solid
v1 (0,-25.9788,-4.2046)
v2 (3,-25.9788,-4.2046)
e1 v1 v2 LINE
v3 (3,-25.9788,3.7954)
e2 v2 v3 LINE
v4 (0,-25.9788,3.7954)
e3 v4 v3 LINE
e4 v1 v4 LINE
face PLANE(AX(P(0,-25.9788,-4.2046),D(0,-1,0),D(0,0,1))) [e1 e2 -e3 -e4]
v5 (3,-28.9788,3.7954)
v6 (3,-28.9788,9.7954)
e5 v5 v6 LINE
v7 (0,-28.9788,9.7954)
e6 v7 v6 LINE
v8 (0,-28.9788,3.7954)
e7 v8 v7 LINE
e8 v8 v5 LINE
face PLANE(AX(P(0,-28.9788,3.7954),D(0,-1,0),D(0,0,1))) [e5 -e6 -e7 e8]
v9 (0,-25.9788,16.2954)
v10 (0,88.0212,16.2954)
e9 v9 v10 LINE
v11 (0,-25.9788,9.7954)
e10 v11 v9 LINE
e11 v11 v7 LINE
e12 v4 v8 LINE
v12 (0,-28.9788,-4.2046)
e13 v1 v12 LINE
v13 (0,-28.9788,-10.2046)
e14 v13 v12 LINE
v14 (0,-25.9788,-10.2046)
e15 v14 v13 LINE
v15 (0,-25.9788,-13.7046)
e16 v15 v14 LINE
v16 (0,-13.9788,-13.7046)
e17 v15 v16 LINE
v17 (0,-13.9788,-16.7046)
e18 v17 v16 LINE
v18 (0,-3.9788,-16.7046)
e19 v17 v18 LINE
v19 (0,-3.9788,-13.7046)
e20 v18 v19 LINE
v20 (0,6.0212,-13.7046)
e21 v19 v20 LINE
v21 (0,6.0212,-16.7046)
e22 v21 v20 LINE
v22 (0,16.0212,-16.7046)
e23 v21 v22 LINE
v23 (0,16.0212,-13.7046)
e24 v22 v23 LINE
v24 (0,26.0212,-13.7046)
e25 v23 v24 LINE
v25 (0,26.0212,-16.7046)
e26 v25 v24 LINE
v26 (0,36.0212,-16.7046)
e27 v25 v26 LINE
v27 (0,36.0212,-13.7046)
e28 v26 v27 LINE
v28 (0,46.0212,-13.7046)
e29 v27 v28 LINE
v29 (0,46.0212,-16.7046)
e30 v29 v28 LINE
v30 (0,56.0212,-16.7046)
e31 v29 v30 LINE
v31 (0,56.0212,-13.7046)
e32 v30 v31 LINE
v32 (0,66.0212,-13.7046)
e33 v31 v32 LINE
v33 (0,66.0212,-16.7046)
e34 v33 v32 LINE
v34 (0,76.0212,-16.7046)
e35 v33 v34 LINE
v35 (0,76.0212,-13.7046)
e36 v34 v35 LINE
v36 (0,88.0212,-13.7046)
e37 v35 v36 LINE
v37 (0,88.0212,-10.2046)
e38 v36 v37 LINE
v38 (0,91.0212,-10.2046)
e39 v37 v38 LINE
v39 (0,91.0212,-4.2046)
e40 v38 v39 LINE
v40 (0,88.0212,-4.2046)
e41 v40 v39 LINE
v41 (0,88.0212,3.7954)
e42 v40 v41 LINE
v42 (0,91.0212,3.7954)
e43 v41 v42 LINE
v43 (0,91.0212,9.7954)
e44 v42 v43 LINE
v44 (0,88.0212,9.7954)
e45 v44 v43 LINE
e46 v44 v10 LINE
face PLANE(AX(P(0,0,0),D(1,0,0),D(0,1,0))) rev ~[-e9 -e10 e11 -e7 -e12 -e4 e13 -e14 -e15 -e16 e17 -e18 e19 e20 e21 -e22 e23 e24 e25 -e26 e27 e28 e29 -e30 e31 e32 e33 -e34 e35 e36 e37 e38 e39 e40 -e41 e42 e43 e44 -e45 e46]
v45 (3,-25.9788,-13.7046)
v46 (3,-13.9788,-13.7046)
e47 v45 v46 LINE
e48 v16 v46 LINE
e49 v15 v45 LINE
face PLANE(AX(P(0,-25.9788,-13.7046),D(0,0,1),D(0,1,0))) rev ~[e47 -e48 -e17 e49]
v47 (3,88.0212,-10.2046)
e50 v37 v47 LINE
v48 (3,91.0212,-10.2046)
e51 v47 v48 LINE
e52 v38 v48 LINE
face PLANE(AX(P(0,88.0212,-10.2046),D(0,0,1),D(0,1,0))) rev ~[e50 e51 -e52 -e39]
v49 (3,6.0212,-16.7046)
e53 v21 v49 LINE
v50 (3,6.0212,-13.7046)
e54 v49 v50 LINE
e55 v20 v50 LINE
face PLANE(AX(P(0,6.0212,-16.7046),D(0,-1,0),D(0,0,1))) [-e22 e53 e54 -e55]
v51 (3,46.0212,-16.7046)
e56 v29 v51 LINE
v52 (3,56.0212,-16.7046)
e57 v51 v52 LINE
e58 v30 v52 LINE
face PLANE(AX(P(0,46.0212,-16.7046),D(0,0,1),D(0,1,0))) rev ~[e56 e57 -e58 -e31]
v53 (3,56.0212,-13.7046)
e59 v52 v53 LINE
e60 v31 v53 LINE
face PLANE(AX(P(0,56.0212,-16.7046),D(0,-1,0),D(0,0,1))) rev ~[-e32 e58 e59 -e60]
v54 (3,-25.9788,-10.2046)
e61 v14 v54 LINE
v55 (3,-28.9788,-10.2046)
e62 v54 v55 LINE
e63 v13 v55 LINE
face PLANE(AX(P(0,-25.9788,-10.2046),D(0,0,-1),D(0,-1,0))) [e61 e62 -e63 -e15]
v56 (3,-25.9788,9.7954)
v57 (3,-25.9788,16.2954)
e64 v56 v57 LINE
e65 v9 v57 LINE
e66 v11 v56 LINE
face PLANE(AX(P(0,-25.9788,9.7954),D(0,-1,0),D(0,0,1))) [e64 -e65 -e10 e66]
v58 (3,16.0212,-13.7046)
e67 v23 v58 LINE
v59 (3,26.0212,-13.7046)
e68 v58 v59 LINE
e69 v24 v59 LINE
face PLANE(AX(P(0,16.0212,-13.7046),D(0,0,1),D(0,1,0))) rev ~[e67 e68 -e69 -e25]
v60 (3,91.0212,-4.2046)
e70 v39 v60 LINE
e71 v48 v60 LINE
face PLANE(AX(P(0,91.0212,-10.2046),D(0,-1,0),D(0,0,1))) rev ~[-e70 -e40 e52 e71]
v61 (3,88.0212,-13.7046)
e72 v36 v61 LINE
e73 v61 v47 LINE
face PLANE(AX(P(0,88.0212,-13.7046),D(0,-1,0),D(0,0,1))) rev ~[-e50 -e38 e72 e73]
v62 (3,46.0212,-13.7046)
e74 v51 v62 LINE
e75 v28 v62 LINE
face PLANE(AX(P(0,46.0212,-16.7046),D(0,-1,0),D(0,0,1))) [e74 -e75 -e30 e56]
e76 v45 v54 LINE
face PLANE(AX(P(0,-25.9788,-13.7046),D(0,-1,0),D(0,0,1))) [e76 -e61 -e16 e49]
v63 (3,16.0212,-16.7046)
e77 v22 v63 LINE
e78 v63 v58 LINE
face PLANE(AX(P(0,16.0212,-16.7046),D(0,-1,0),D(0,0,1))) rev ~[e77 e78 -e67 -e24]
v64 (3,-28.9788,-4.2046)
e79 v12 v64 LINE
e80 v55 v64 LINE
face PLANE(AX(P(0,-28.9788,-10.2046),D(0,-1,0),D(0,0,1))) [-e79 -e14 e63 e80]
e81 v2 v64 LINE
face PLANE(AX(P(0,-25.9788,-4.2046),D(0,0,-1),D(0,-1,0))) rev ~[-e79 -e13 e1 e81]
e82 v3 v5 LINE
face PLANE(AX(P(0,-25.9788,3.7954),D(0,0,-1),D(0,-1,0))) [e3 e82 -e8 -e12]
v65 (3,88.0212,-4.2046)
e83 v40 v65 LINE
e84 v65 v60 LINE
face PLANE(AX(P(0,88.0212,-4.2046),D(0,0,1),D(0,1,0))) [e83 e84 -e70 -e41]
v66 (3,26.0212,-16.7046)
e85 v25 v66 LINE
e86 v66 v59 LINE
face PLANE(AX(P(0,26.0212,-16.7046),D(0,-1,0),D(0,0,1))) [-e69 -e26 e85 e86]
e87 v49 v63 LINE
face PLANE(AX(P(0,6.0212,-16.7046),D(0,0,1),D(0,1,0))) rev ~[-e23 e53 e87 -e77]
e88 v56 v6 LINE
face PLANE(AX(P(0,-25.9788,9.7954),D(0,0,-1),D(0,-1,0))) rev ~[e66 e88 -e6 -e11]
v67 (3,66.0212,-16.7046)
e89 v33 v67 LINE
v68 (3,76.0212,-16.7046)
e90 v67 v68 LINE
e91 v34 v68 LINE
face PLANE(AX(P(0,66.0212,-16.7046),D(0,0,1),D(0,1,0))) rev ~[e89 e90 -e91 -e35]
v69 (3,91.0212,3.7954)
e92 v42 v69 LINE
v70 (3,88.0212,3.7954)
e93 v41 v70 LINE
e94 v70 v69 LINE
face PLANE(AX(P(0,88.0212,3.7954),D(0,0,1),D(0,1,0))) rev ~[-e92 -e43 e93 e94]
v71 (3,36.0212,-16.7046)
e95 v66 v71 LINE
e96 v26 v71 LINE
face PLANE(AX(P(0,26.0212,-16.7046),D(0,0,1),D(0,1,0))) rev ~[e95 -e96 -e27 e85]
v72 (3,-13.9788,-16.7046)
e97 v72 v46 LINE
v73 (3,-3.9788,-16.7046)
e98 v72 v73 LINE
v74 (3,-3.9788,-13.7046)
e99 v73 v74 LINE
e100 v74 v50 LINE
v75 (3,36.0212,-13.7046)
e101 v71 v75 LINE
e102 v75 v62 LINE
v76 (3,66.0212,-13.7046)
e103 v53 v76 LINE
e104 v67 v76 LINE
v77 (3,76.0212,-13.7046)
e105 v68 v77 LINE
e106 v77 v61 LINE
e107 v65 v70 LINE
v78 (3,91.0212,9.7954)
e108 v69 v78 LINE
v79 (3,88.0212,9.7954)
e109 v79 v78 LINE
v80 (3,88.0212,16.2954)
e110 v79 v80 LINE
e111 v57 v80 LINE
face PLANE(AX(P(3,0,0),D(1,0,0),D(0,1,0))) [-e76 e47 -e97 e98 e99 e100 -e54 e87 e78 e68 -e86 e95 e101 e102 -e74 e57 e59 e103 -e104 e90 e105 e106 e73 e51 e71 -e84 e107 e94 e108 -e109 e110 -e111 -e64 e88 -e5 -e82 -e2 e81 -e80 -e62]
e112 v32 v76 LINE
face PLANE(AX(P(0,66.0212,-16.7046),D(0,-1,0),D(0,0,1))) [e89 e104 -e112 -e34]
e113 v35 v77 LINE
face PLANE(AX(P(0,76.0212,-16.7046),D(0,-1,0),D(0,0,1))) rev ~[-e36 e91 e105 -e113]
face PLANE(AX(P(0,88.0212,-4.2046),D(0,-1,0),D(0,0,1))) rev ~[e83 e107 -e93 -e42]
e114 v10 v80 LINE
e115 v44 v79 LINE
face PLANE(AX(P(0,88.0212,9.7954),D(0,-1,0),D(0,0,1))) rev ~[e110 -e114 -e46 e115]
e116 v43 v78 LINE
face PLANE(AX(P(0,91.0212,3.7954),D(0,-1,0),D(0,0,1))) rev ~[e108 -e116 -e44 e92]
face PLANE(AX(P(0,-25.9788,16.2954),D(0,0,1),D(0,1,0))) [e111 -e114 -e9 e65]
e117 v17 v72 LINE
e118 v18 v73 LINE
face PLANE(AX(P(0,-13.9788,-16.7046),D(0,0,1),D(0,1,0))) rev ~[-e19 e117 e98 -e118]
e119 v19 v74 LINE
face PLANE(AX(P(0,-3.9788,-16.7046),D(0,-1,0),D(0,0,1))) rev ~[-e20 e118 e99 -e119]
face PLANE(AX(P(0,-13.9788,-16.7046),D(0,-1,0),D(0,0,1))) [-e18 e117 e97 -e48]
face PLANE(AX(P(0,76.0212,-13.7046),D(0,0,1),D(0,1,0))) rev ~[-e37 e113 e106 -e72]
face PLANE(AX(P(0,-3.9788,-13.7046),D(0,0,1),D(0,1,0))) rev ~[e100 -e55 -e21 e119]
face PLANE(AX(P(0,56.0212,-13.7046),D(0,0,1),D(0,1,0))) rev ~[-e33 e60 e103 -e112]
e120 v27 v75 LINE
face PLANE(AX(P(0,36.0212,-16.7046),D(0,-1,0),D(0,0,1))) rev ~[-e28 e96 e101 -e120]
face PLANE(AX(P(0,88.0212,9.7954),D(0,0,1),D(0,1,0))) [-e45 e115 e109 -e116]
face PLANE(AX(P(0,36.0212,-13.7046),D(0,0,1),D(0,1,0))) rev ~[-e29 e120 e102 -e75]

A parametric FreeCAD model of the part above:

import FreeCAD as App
import Part
import Sketcher
Q = App.Units.Quantity

doc = App.newDocument("Part")
body = doc.addObject("PartDesign::Body", "Body")

# Sketch on YZ plane
sketch1 = body.newObject("Sketcher::SketchObject", "Sketch")
sketch1.AttachmentSupport = (doc.getObject("YZ_Plane"), [""])
sketch1.MapMode = "FlatFace"
sketch1.addGeometry([
    Part.LineSegment(App.Vector(6, -16.7, 0), App.Vector(16, -16.7, 0)),  # 0
    Part.LineSegment(App.Vector(16, -16.7, 0), App.Vector(16, -13.7, 0)),  # 1
    Part.LineSegment(App.Vector(16, -13.7, 0), App.Vector(26, -13.7, 0)),  # 2
    Part.LineSegment(App.Vector(26, -13.7, 0), App.Vector(26, -16.7, 0)),  # 3
    Part.LineSegment(App.Vector(26, -16.7, 0), App.Vector(36, -16.7, 0)),  # 4
    Part.LineSegment(App.Vector(36, -16.7, 0), App.Vector(36, -13.7, 0)),  # 5
    Part.LineSegment(App.Vector(36, -13.7, 0), App.Vector(46, -13.7, 0)),  # 6
    Part.LineSegment(App.Vector(46, -13.7, 0), App.Vector(46, -16.7, 0)),  # 7
    Part.LineSegment(App.Vector(46, -16.7, 0), App.Vector(56, -16.7, 0)),  # 8
    Part.LineSegment(App.Vector(56, -16.7, 0), App.Vector(56, -13.7, 0)),  # 9
    Part.LineSegment(App.Vector(56, -13.7, 0), App.Vector(66, -13.7, 0)),  # 10
    Part.LineSegment(App.Vector(66, -13.7, 0), App.Vector(66, -16.7, 0)),  # 11
    Part.LineSegment(App.Vector(66, -16.7, 0), App.Vector(76, -16.7, 0)),  # 12
    Part.LineSegment(App.Vector(76, -16.7, 0), App.Vector(76, -13.7, 0)),  # 13
    Part.LineSegment(App.Vector(76, -13.7, 0), App.Vector(88, -13.7, 0)),  # 14
    Part.LineSegment(App.Vector(88, -13.7, 0), App.Vector(88, -10.2, 0)),  # 15
    Part.LineSegment(App.Vector(88, -10.2, 0), App.Vector(91, -10.2, 0)),  # 16
    Part.LineSegment(App.Vector(91, -10.2, 0), App.Vector(91, -4.2, 0)),  # 17
    Part.LineSegment(App.Vector(91, -4.2, 0), App.Vector(88, -4.2, 0)),  # 18
    Part.LineSegment(App.Vector(88, -4.2, 0), App.Vector(88, 3.8, 0)),  # 19
    Part.LineSegment(App.Vector(88, 3.8, 0), App.Vector(91, 3.8, 0)),  # 20
    Part.LineSegment(App.Vector(91, 3.8, 0), App.Vector(91, 9.8, 0)),  # 21
    Part.LineSegment(App.Vector(91, 9.8, 0), App.Vector(88, 9.8, 0)),  # 22
    Part.LineSegment(App.Vector(88, 9.8, 0), App.Vector(88, 16.3, 0)),  # 23
    Part.LineSegment(App.Vector(88, 16.3, 0), App.Vector(-26, 16.3, 0)),  # 24
    Part.LineSegment(App.Vector(-26, 16.3, 0), App.Vector(-26, 9.8, 0)),  # 25
    Part.LineSegment(App.Vector(-26, 9.8, 0), App.Vector(-29, 9.8, 0)),  # 26
    Part.LineSegment(App.Vector(-29, 9.8, 0), App.Vector(-29, 3.8, 0)),  # 27
    Part.LineSegment(App.Vector(-29, 3.8, 0), App.Vector(-26, 3.8, 0)),  # 28
    Part.LineSegment(App.Vector(-26, 3.8, 0), App.Vector(-26, -4.2, 0)),  # 29
    Part.LineSegment(App.Vector(-26, -4.2, 0), App.Vector(-29, -4.2, 0)),  # 30
    Part.LineSegment(App.Vector(-29, -4.2, 0), App.Vector(-29, -10.2, 0)),  # 31
    Part.LineSegment(App.Vector(-29, -10.2, 0), App.Vector(-26, -10.2, 0)),  # 32
    Part.LineSegment(App.Vector(-26, -10.2, 0), App.Vector(-26, -13.7, 0)),  # 33
    Part.LineSegment(App.Vector(-26, -13.7, 0), App.Vector(-14, -13.7, 0)),  # 34
    Part.LineSegment(App.Vector(-14, -13.7, 0), App.Vector(-14, -16.7, 0)),  # 35
    Part.LineSegment(App.Vector(-14, -16.7, 0), App.Vector(-4, -16.7, 0)),  # 36
    Part.LineSegment(App.Vector(-4, -16.7, 0), App.Vector(-4, -13.7, 0)),  # 37
    Part.LineSegment(App.Vector(-4, -13.7, 0), App.Vector(6, -13.7, 0)),  # 38
    Part.LineSegment(App.Vector(6, -13.7, 0), App.Vector(6, -16.7, 0)),  # 39
], False)
sketch1.addConstraint([
    Sketcher.Constraint("Coincident", 0, 2, 1, 1),
    Sketcher.Constraint("Coincident", 1, 2, 2, 1),
    Sketcher.Constraint("Coincident", 2, 2, 3, 1),
    Sketcher.Constraint("Coincident", 3, 2, 4, 1),
    Sketcher.Constraint("Coincident", 4, 2, 5, 1),
    Sketcher.Constraint("Coincident", 5, 2, 6, 1),
    Sketcher.Constraint("Coincident", 6, 2, 7, 1),
    Sketcher.Constraint("Coincident", 7, 2, 8, 1),
    Sketcher.Constraint("Coincident", 8, 2, 9, 1),
    Sketcher.Constraint("Coincident", 9, 2, 10, 1),
    Sketcher.Constraint("Coincident", 10, 2, 11, 1),
    Sketcher.Constraint("Coincident", 11, 2, 12, 1),
    Sketcher.Constraint("Coincident", 12, 2, 13, 1),
    Sketcher.Constraint("Coincident", 13, 2, 14, 1),
    Sketcher.Constraint("Coincident", 14, 2, 15, 1),
    Sketcher.Constraint("Coincident", 15, 2, 16, 1),
    Sketcher.Constraint("Coincident", 16, 2, 17, 1),
    Sketcher.Constraint("Coincident", 17, 2, 18, 1),
    Sketcher.Constraint("Coincident", 18, 2, 19, 1),
    Sketcher.Constraint("Coincident", 19, 2, 20, 1),
    Sketcher.Constraint("Coincident", 20, 2, 21, 1),
    Sketcher.Constraint("Coincident", 21, 2, 22, 1),
    Sketcher.Constraint("Coincident", 22, 2, 23, 1),
    Sketcher.Constraint("Coincident", 23, 2, 24, 1),
    Sketcher.Constraint("Coincident", 24, 2, 25, 1),
    Sketcher.Constraint("Coincident", 25, 2, 26, 1),
    Sketcher.Constraint("Coincident", 26, 2, 27, 1),
    Sketcher.Constraint("Coincident", 27, 2, 28, 1),
    Sketcher.Constraint("Coincident", 28, 2, 29, 1),
    Sketcher.Constraint("Coincident", 29, 2, 30, 1),
    Sketcher.Constraint("Coincident", 30, 2, 31, 1),
    Sketcher.Constraint("Coincident", 31, 2, 32, 1),
    Sketcher.Constraint("Coincident", 32, 2, 33, 1),
    Sketcher.Constraint("Coincident", 33, 2, 34, 1),
    Sketcher.Constraint("Coincident", 34, 2, 35, 1),
    Sketcher.Constraint("Coincident", 35, 2, 36, 1),
    Sketcher.Constraint("Coincident", 36, 2, 37, 1),
    Sketcher.Constraint("Coincident", 37, 2, 38, 1),
    Sketcher.Constraint("Coincident", 38, 2, 39, 1),
    Sketcher.Constraint("Coincident", 39, 2, 0, 1),
    Sketcher.Constraint("Horizontal", 0),
    Sketcher.Constraint("Vertical", 1),
    Sketcher.Constraint("Horizontal", 2),
    Sketcher.Constraint("Vertical", 3),
    Sketcher.Constraint("Horizontal", 4),
    Sketcher.Constraint("Vertical", 5),
    Sketcher.Constraint("Horizontal", 6),
    Sketcher.Constraint("Vertical", 7),
    Sketcher.Constraint("Horizontal", 8),
    Sketcher.Constraint("Vertical", 9),
    Sketcher.Constraint("Horizontal", 10),
    Sketcher.Constraint("Vertical", 11),
    Sketcher.Constraint("Horizontal", 12),
    Sketcher.Constraint("Vertical", 13),
    Sketcher.Constraint("Horizontal", 14),
    Sketcher.Constraint("Vertical", 15),
    Sketcher.Constraint("Horizontal", 16),
    Sketcher.Constraint("Vertical", 17),
    Sketcher.Constraint("Horizontal", 18),
    Sketcher.Constraint("Vertical", 19),
    Sketcher.Constraint("Horizontal", 20),
    Sketcher.Constraint("Vertical", 21),
    Sketcher.Constraint("Horizontal", 22),
    Sketcher.Constraint("Vertical", 23),
    Sketcher.Constraint("Horizontal", 24),
    Sketcher.Constraint("Vertical", 25),
    Sketcher.Constraint("Horizontal", 26),
    Sketcher.Constraint("Vertical", 27),
    Sketcher.Constraint("Horizontal", 28),
    Sketcher.Constraint("Vertical", 29),
    Sketcher.Constraint("Horizontal", 30),
    Sketcher.Constraint("Vertical", 31),
    Sketcher.Constraint("Horizontal", 32),
    Sketcher.Constraint("Vertical", 33),
    Sketcher.Constraint("Horizontal", 34),
    Sketcher.Constraint("Vertical", 35),
    Sketcher.Constraint("Horizontal", 36),
    Sketcher.Constraint("Vertical", 37),
    Sketcher.Constraint("Horizontal", 38),
    Sketcher.Constraint("Vertical", 39),
    Sketcher.Constraint("Horizontal", 0, 2, 3, 2),
    Sketcher.Constraint("Horizontal", 2, 2, 5, 2),
    Sketcher.Constraint("Horizontal", 4, 2, 7, 2),
    Sketcher.Constraint("Horizontal", 6, 2, 9, 2),
    Sketcher.Constraint("Horizontal", 8, 2, 11, 2),
    Sketcher.Constraint("Horizontal", 10, 2, 13, 2),
    Sketcher.Constraint("Horizontal", 22, 2, 25, 2),
    Sketcher.Constraint("Horizontal", 20, 2, 27, 2),
    Sketcher.Constraint("Horizontal", 18, 2, 29, 2),
    Sketcher.Constraint("Horizontal", 16, 2, 31, 2),
    Sketcher.Constraint("Horizontal", 14, 2, 33, 2),
    Sketcher.Constraint("Horizontal", 12, 2, 35, 2),
    Sketcher.Constraint("Horizontal", 34, 2, 37, 2),
    Sketcher.Constraint("Vertical", 15, 2, 18, 2),
    Sketcher.Constraint("Vertical", 17, 2, 20, 2),
    Sketcher.Constraint("Vertical", 19, 2, 22, 2),
    Sketcher.Constraint("Vertical", 25, 2, 28, 2),
    Sketcher.Constraint("Vertical", 27, 2, 30, 2),
    Sketcher.Constraint("Vertical", 29, 2, 32, 2),
    Sketcher.Constraint("Equal", 0, 2),
    Sketcher.Constraint("Equal", 2, 4),
    Sketcher.Constraint("Equal", 4, 6),
    Sketcher.Constraint("Equal", 6, 8),
    Sketcher.Constraint("Equal", 8, 10),
    Sketcher.Constraint("Equal", 10, 12),
    Sketcher.Constraint("Equal", 22, 26),
    Sketcher.Constraint("Equal", 14, 34),
    Sketcher.Constraint("Equal", 12, 36),
    Sketcher.Constraint("Equal", 36, 38),
    Sketcher.Constraint("Equal", 32, 1),
    Sketcher.Constraint("Equal", 17, 21),
    Sketcher.Constraint("DistanceX", 0, 1, 0, 2, Q("10 mm")),
    Sketcher.Constraint("DistanceX", 14, 1, 14, 2, Q("12 mm")),
    Sketcher.Constraint("DistanceX", 16, 1, 16, 2, Q("3 mm")),
    Sketcher.Constraint("DistanceY", 17, 1, 17, 2, Q("6 mm")),
    Sketcher.Constraint("DistanceY", 19, 1, 19, 2, Q("8 mm")),
    Sketcher.Constraint("DistanceY", 15, 1, 15, 2, Q("3.5 mm")),
    Sketcher.Constraint("DistanceY", 23, 1, 23, 2, Q("6.5 mm")),
    Sketcher.Constraint("DistanceX", -1, 1, 0, 2, Q("16.0212 mm")),
    Sketcher.Constraint("DistanceY", 0, 2, -1, 1, Q("16.7046 mm")),
])
pad1 = body.newObject("PartDesign::Pad", "Pad")
pad1.Profile = sketch1
pad1.Length = 3

doc.recompute()
